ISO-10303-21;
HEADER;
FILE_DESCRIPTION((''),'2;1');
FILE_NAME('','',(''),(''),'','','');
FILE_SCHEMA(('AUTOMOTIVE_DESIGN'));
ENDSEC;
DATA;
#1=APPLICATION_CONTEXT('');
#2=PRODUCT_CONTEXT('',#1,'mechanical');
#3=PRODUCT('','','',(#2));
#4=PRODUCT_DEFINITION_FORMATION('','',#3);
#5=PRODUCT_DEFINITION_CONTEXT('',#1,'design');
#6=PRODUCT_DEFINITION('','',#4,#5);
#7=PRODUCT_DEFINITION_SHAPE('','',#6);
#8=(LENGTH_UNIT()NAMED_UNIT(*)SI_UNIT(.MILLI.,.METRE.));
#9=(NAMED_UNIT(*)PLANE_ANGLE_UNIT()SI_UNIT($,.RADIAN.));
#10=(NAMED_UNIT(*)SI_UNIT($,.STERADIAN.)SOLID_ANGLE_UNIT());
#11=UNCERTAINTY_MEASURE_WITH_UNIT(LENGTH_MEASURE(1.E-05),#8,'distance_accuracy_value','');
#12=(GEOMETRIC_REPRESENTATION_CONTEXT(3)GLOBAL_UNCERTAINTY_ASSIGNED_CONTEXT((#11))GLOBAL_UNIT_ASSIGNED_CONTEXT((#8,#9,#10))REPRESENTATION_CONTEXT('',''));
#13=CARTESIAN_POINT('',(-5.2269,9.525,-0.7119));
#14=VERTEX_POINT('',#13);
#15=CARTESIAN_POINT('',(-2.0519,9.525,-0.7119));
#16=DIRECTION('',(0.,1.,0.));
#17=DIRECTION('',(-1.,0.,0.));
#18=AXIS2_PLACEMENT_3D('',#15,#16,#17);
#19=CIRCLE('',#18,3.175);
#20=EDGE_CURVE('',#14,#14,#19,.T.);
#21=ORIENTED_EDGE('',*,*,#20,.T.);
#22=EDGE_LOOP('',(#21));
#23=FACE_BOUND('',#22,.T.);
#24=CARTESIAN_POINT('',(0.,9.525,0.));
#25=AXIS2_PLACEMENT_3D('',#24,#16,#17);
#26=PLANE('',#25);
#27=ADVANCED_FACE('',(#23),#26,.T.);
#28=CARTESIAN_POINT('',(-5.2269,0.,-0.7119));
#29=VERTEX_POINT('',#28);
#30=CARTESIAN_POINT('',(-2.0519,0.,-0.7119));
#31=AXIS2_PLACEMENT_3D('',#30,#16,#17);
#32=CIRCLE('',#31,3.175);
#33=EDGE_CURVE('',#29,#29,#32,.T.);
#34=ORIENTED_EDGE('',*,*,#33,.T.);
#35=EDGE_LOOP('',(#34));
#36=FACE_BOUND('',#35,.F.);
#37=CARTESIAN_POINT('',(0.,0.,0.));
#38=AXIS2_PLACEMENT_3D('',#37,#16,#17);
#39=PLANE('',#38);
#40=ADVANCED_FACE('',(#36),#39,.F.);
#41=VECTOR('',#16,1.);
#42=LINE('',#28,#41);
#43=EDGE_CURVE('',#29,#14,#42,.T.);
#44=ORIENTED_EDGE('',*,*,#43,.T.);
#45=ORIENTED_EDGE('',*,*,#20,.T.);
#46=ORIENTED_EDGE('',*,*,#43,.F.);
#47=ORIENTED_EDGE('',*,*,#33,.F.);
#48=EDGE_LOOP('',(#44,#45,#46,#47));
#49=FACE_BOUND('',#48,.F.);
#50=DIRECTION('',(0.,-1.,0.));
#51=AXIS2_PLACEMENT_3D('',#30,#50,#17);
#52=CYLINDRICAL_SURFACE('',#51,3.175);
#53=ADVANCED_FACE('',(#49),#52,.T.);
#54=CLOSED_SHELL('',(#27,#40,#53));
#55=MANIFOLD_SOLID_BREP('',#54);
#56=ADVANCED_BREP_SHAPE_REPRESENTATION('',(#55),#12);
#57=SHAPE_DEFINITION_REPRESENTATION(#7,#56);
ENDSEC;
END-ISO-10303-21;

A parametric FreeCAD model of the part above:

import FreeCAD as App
import Part
import Sketcher

V = App.Vector
Q = App.Units.Quantity

doc = App.newDocument("Part")
body = doc.addObject("PartDesign::Body", "Body")

sketch1 = body.newObject("Sketcher::SketchObject", "Sketch")
sketch1.AttachmentSupport = (doc.getObject("XZ_Plane"), [""])
sketch1.MapMode = "FlatFace"
sketch1.addGeometry(Part.Circle(V(-2.1, -0.7, 0), V(0, 0, 1), 3.2), False)
sketch1.addConstraint(Sketcher.Constraint("Diameter", 0, Q("0.25 in")))
sketch1.addConstraint(Sketcher.Constraint("DistanceX", 0, 3, -1, 1, Q("2.052 mm")))
sketch1.addConstraint(Sketcher.Constraint("DistanceY", 0, 3, -1, 1, Q("0.712 mm")))
pad1 = body.newObject("PartDesign::Pad", "Pad")
pad1.Profile = sketch1
pad1.Length = Q("0.375 in")
pad1.Reversed = True

doc.recompute()
